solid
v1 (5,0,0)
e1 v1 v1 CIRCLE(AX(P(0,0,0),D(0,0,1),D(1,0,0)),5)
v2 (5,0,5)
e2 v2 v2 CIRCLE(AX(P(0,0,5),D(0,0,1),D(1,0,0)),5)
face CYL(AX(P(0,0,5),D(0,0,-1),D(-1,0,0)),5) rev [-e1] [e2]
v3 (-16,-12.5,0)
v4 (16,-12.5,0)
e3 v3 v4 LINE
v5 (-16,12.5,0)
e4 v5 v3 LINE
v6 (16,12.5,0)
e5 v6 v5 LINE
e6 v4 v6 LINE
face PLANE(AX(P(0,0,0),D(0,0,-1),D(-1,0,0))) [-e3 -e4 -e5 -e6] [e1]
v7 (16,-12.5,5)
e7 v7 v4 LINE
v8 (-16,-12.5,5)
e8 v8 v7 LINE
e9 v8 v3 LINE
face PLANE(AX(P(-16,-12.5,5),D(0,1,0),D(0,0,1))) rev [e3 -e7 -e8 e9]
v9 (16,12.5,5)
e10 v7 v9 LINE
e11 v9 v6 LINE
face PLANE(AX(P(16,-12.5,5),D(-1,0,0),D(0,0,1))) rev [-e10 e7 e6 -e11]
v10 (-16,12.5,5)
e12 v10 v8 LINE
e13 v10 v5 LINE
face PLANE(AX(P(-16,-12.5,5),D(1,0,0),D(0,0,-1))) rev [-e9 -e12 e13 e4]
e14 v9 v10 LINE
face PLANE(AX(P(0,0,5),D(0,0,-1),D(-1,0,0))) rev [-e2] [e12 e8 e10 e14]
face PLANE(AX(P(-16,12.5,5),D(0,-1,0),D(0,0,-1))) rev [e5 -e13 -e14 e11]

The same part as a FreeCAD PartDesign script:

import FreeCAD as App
import Part
import Sketcher


def add_polygon(sketch, points):
    """Adds a closed chain of lines whose ends are joined by coincident constraints."""
    first, n = sketch.GeometryCount, len(points)
    for a, b in zip(points, points[1:] + points[:1]):
        sketch.addGeometry(Part.LineSegment(App.Vector(*a, 0), App.Vector(*b, 0)), False)
    for i in range(n):
        sketch.addConstraint(Sketcher.Constraint("Coincident", first + i, 2, first + (i + 1) % n, 1))

doc = App.newDocument("Part")
body = doc.addObject("PartDesign::Body", "Body")

# Sketch on XY plane
sketch1 = doc.addObject("Sketcher::SketchObject", "Sketch")
body.addObject(sketch1)
sketch1.AttachmentSupport = (doc.XY_Plane, [""])
sketch1.MapMode = "FlatFace"
add_polygon(sketch1, [(-16, 12), (-16, -12), (16, -12), (16, 12)])  # lines 0-3
sketch1.addGeometry(Part.Circle(App.Vector(0, 0, 0), App.Vector(0, 0, 1), 5), False)  # 4
sketch1.addConstraint([
    Sketcher.Constraint("Vertical", 0),
    Sketcher.Constraint("Horizontal", 1),
    Sketcher.Constraint("Vertical", 2),
    Sketcher.Constraint("Horizontal", 3),
    Sketcher.Constraint("Coincident", 4, 3, -1, 1),
    Sketcher.Constraint("Symmetric", 0, 2, 2, 2, -1, 1),
    Sketcher.Constraint("Diameter", 4, 10.0),
    Sketcher.Constraint("DistanceX", 1, 1, 1, 2, 32.0),
    Sketcher.Constraint("DistanceY", 0, 2, 0, 1, 25.0),
])
pad1 = doc.addObject("PartDesign::Pad", "Pad")
body.addObject(pad1)
pad1.Profile = sketch1
pad1.Length = 5

doc.recompute()
